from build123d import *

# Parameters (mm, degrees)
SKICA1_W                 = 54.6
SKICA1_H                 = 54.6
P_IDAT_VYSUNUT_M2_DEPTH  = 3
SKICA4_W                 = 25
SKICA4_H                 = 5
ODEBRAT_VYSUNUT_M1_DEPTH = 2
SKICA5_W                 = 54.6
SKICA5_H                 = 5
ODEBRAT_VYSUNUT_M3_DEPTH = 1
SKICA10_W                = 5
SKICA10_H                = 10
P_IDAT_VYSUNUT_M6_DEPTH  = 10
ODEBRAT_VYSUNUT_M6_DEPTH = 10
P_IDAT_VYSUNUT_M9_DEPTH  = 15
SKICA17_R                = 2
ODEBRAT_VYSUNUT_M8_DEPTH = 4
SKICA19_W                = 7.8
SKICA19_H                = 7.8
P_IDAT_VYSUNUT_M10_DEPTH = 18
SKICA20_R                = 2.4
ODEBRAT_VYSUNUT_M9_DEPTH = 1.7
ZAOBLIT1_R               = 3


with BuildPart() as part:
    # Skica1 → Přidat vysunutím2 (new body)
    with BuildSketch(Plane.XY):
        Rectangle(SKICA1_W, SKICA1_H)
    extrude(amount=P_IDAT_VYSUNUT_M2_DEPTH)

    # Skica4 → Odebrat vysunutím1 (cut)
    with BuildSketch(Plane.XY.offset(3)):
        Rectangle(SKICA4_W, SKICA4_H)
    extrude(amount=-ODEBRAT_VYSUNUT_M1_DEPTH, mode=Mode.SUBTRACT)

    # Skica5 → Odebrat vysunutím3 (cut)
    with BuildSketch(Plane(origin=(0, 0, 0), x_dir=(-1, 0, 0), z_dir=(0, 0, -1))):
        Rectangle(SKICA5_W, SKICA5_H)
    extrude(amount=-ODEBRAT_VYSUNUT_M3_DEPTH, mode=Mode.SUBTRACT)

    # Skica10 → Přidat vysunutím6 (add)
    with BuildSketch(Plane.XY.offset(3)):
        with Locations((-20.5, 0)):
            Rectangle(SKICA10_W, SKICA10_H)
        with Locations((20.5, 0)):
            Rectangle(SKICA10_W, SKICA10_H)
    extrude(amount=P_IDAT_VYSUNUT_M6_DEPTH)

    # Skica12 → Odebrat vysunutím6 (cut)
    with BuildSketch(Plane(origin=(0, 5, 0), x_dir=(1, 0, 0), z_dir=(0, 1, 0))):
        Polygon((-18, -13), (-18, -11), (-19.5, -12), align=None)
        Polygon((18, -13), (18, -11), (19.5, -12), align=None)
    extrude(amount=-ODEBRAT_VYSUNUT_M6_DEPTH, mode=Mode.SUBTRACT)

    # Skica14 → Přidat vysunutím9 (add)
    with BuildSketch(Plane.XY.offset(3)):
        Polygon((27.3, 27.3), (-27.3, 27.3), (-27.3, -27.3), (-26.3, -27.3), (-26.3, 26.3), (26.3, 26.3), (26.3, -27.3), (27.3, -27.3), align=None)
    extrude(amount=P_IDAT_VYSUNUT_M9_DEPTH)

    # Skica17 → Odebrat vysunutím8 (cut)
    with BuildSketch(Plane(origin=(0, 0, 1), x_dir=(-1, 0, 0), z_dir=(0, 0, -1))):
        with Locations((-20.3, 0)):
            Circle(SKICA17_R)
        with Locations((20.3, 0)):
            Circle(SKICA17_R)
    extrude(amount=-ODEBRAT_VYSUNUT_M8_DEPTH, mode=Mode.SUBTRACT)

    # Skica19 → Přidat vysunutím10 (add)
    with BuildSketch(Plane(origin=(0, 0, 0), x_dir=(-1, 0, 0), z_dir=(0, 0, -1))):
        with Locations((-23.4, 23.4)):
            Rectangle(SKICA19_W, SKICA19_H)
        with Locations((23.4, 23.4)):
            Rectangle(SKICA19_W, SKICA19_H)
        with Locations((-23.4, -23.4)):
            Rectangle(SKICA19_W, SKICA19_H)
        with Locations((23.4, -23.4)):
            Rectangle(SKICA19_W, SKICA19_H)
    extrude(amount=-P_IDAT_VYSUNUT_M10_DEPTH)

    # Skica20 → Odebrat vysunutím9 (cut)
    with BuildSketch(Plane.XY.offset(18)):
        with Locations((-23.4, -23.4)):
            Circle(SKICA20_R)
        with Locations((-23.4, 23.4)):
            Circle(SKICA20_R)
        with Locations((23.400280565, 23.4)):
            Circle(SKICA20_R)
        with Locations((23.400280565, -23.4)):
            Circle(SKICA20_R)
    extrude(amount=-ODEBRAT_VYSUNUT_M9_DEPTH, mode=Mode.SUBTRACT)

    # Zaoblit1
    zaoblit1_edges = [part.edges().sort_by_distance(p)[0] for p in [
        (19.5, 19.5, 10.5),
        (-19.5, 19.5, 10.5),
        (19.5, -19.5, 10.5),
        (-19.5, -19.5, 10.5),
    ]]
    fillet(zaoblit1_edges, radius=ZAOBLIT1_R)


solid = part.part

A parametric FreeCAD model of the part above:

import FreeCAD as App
import Part
import Sketcher

V = App.Vector
Q = App.Units.Quantity


def edges_at(feature, points):
    """Names of the edges that pass closest to the given points."""
    edges = feature.Shape.Edges
    near = lambda p: min(range(len(edges)), key=lambda i: edges[i].distToShape(Part.Vertex(*p))[0])
    return sorted({f"Edge{near(p) + 1}" for p in points})


def add_polygon(sketch, points):
    """Adds a closed chain of lines whose ends are joined by coincident constraints."""
    first, n = sketch.GeometryCount, len(points)
    for a, b in zip(points, points[1:] + points[:1]):
        sketch.addGeometry(Part.LineSegment(App.Vector(*a, 0), App.Vector(*b, 0)), False)
    for i in range(n):
        sketch.addConstraint(Sketcher.Constraint("Coincident", first + i, 2, first + (i + 1) % n, 1))

doc = App.newDocument("Part")
params = doc.addObject("Spreadsheet::Sheet", "Params")
for row, (alias, value) in enumerate([
    ("sketch1_width", "54.6 mm"),
    ("pad1_length", "3 mm"),
    ("sketch2_width", "25 mm"),
    ("sketch2_height", "5 mm"),
    ("pocket1_length", "2 mm"),
    ("sketch3_height", "5 mm"),
    ("sketch3_width", "54.6 mm"),
    ("pocket2_length", "1 mm"),
    ("sketch4_width", "5 mm"),
    ("sketch4_height", "10 mm"),
    ("pad2_length", "10 mm"),
    ("sketch5_height", "2 mm"),
    ("pocket3_length", "10 mm"),
    ("sketch6_width", "1 mm"),
    ("sketch6_width2", "54.6 mm"),
    ("sketch6_height", "53.6 mm"),
    ("pad3_length", "15 mm"),
    ("sketch7_diameter", "4 mm"),
    ("pocket4_length", "4 mm"),
    ("sketch8_width", "7.8 mm"),
    ("pad4_length", "18 mm"),
    ("sketch9_diameter", "4.8 mm"),
    ("pocket5_length", "1.7 mm"),
    ("fillet_radius", "3 mm"),
], start=1):
    params.set(f"A{row}", alias)
    params.set(f"B{row}", "=" + value)
    params.setAlias(f"B{row}", alias)

body = doc.addObject("PartDesign::Body", "Body")

sketch1 = body.newObject("Sketcher::SketchObject", "Sketch")
sketch1.AttachmentSupport = (doc.getObject("XY_Plane"), [""])
sketch1.MapMode = "FlatFace"
add_polygon(sketch1, [(-27, 27), (-27, -27), (27, -27), (27, 27)])
sketch1.addConstraint(Sketcher.Constraint("Vertical", 0))
sketch1.addConstraint(Sketcher.Constraint("Horizontal", 1))
sketch1.addConstraint(Sketcher.Constraint("Vertical", 2))
sketch1.addConstraint(Sketcher.Constraint("Horizontal", 3))
sketch1.addConstraint(Sketcher.Constraint("Symmetric", 0, 2, 2, 2, -1, 1))
sketch1.addConstraint(Sketcher.Constraint("Equal", 3, 0))
sketch1.addConstraint(Sketcher.Constraint("DistanceX", 1, 1, 1, 2, Q("54.6 mm")))
sketch1.setExpression("Constraints[10]", "Params.sketch1_width")
pad1 = body.newObject("PartDesign::Pad", "Pad")
pad1.Profile = sketch1
pad1.setExpression("Length", "Params.pad1_length")

sketch2 = body.newObject("Sketcher::SketchObject", "Sketch001")
sketch2.AttachmentSupport = (doc.getObject("XY_Plane"), [""])
sketch2.MapMode = "FlatFace"
sketch2.AttachmentOffset = App.Placement(V(0, 0, 3), App.Rotation())
add_polygon(sketch2, [(-12, 2), (-12, -2), (12, -2), (12, 2)])
sketch2.addConstraint(Sketcher.Constraint("Vertical", 0))
sketch2.addConstraint(Sketcher.Constraint("Horizontal", 1))
sketch2.addConstraint(Sketcher.Constraint("Vertical", 2))
sketch2.addConstraint(Sketcher.Constraint("Horizontal", 3))
sketch2.addConstraint(Sketcher.Constraint("Symmetric", 0, 2, 2, 2, -1, 1))
sketch2.addConstraint(Sketcher.Constraint("DistanceX", 1, 1, 1, 2, Q("25 mm")))
sketch2.addConstraint(Sketcher.Constraint("DistanceY", 0, 2, 0, 1, Q("5 mm")))
sketch2.setExpression("Constraints[9]", "Params.sketch2_width")
sketch2.setExpression("Constraints[10]", "Params.sketch2_height")
pocket1 = body.newObject("PartDesign::Pocket", "Pocket")
pocket1.Profile = sketch2
pocket1.setExpression("Length", "Params.pocket1_length")

sketch3 = body.newObject("Sketcher::SketchObject", "Sketch002")
sketch3.AttachmentSupport = (doc.getObject("XY_Plane"), [""])
sketch3.MapMode = "FlatFace"
add_polygon(sketch3, [(27, 2), (27, -2), (-27, -2), (-27, 2)])
sketch3.addConstraint(Sketcher.Constraint("Vertical", 0))
sketch3.addConstraint(Sketcher.Constraint("Horizontal", 1))
sketch3.addConstraint(Sketcher.Constraint("Vertical", 2))
sketch3.addConstraint(Sketcher.Constraint("Horizontal", 3))
sketch3.addConstraint(Sketcher.Constraint("Symmetric", 0, 2, 2, 2, -1, 1))
sketch3.addConstraint(Sketcher.Constraint("DistanceY", 0, 2, 0, 1, Q("5 mm")))
sketch3.addConstraint(Sketcher.Constraint("DistanceX", 1, 2, 1, 1, Q("54.6 mm")))
sketch3.setExpression("Constraints[9]", "Params.sketch3_height")
sketch3.setExpression("Constraints[10]", "Params.sketch3_width")
pocket2 = body.newObject("PartDesign::Pocket", "Pocket001")
pocket2.Profile = sketch3
pocket2.setExpression("Length", "Params.pocket2_length")
pocket2.Reversed = True

sketch4 = body.newObject("Sketcher::SketchObject", "Sketch003")
sketch4.AttachmentSupport = (doc.getObject("XY_Plane"), [""])
sketch4.MapMode = "FlatFace"
sketch4.AttachmentOffset = App.Placement(V(0, 0, 3), App.Rotation())
add_polygon(sketch4, [(-23, 5), (-23, -5), (-18, -5), (-18, 5)])
add_polygon(sketch4, [(18, 5), (18, -5), (23, -5), (23, 5)])
sketch4.addConstraint(Sketcher.Constraint("Vertical", 0))
sketch4.addConstraint(Sketcher.Constraint("Horizontal", 1))
sketch4.addConstraint(Sketcher.Constraint("Vertical", 2))
sketch4.addConstraint(Sketcher.Constraint("Horizontal", 3))
sketch4.addConstraint(Sketcher.Constraint("Vertical", 4))
sketch4.addConstraint(Sketcher.Constraint("Horizontal", 5))
sketch4.addConstraint(Sketcher.Constraint("Vertical", 6))
sketch4.addConstraint(Sketcher.Constraint("Horizontal", 7))
sketch4.addConstraint(Sketcher.Constraint("Symmetric", 2, 2, 4, 2, -1, 1))
sketch4.addConstraint(Sketcher.Constraint("Symmetric", 0, 2, 6, 2, -1, 1))
sketch4.addConstraint(Sketcher.Constraint("Horizontal", 1, 2, 4, 2))
sketch4.addConstraint(Sketcher.Constraint("DistanceX", 1, 1, 1, 2, Q("5 mm")))
sketch4.addConstraint(Sketcher.Constraint("DistanceY", 0, 2, 0, 1, Q("10 mm")))
sketch4.addConstraint(Sketcher.Constraint("DistanceX", 0, 2, -1, 1, Q("23 mm")))
sketch4.setExpression("Constraints[19]", "Params.sketch4_width")
sketch4.setExpression("Constraints[20]", "Params.sketch4_height")
pad2 = body.newObject("PartDesign::Pad", "Pad001")
pad2.Profile = sketch4
pad2.setExpression("Length", "Params.pad2_length")

sketch5 = body.newObject("Sketcher::SketchObject", "Sketch004")
sketch5.AttachmentSupport = (doc.getObject("XZ_Plane"), [""])
sketch5.MapMode = "FlatFace"
sketch5.AttachmentOffset = App.Placement(V(0, 0, -5), App.Rotation())
add_polygon(sketch5, [(-18, 13), (-18, 11), (-19.5, 12)])
add_polygon(sketch5, [(18, 11), (18, 13), (19.5, 12)])
sketch5.addConstraint(Sketcher.Constraint("Vertical", 0))
sketch5.addConstraint(Sketcher.Constraint("Vertical", 3))
sketch5.addConstraint(Sketcher.Constraint("Symmetric", 2, 2, 3, 2, -2))
sketch5.addConstraint(Sketcher.Constraint("Symmetric", 1, 2, 4, 2, -2))
sketch5.addConstraint(Sketcher.Constraint("Parallel", 1, 4))
sketch5.addConstraint(Sketcher.Constraint("Parallel", 2, 5))
sketch5.addConstraint(Sketcher.Constraint("DistanceY", 0, 2, 0, 1, Q("2 mm")))
sketch5.addConstraint(Sketcher.Constraint("DistanceX", 0, 2, -1, 1, Q("18 mm")))
sketch5.addConstraint(Sketcher.Constraint("DistanceY", -1, 1, 0, 2, Q("11 mm")))
sketch5.addConstraint(Sketcher.Constraint("DistanceX", 1, 2, 4, 2, Q("39 mm")))
sketch5.setExpression("Constraints[12]", "Params.sketch5_height")
pocket3 = body.newObject("PartDesign::Pocket", "Pocket002")
pocket3.Profile = sketch5
pocket3.setExpression("Length", "Params.pocket3_length")
pocket3.Reversed = True

sketch6 = body.newObject("Sketcher::SketchObject", "Sketch005")
sketch6.AttachmentSupport = (doc.getObject("XY_Plane"), [""])
sketch6.MapMode = "FlatFace"
sketch6.AttachmentOffset = App.Placement(V(0, 0, 3), App.Rotation())
add_polygon(sketch6, [(27.3, 27.3), (-27.3, 27.3), (-27.3, -27.3), (-26.3, -27.3), (-26.3, 26.3), (26.3, 26.3), (26.3, -27.3), (27.3, -27.3)])
sketch6.addConstraint(Sketcher.Constraint("Horizontal", 0))
sketch6.addConstraint(Sketcher.Constraint("Vertical", 1))
sketch6.addConstraint(Sketcher.Constraint("Horizontal", 2))
sketch6.addConstraint(Sketcher.Constraint("Vertical", 3))
sketch6.addConstraint(Sketcher.Constraint("Horizontal", 4))
sketch6.addConstraint(Sketcher.Constraint("Vertical", 5))
sketch6.addConstraint(Sketcher.Constraint("Horizontal", 6))
sketch6.addConstraint(Sketcher.Constraint("Vertical", 7))
sketch6.addConstraint(Sketcher.Constraint("Symmetric", 0, 2, 6, 2, -1, 1))
sketch6.addConstraint(Sketcher.Constraint("Symmetric", 2, 2, 5, 2, -2))
sketch6.addConstraint(Sketcher.Constraint("Equal", 0, 1))
sketch6.addConstraint(Sketcher.Constraint("DistanceX", 2, 1, 2, 2, Q("1 mm")))
sketch6.addConstraint(Sketcher.Constraint("DistanceX", 0, 2, 0, 1, Q("54.6 mm")))
sketch6.addConstraint(Sketcher.Constraint("DistanceY", 3, 1, 3, 2, Q("53.6 mm")))
sketch6.setExpression("Constraints[19]", "Params.sketch6_width")
sketch6.setExpression("Constraints[20]", "Params.sketch6_width2")
sketch6.setExpression("Constraints[21]", "Params.sketch6_height")
pad3 = body.newObject("PartDesign::Pad", "Pad002")
pad3.Profile = sketch6
pad3.setExpression("Length", "Params.pad3_length")

sketch7 = body.newObject("Sketcher::SketchObject", "Sketch006")
sketch7.AttachmentSupport = (doc.getObject("XY_Plane"), [""])
sketch7.MapMode = "FlatFace"
sketch7.AttachmentOffset = App.Placement(V(0, 0, 1), App.Rotation())
sketch7.addGeometry(Part.Circle(V(20.3, 0, 0), V(0, 0, 1), 2), False)
sketch7.addGeometry(Part.Circle(V(-20.3, 0, 0), V(0, 0, 1), 2), False)
sketch7.addConstraint(Sketcher.Constraint("Equal", 0, 1))
sketch7.addConstraint(Sketcher.Constraint("Symmetric", 0, 3, 1, 3, -1, 1))
sketch7.addConstraint(Sketcher.Constraint("PointOnObject", 0, 3, -1))
sketch7.addConstraint(Sketcher.Constraint("Diameter", 0, Q("4 mm")))
sketch7.addConstraint(Sketcher.Constraint("DistanceX", -1, 1, 0, 3, Q("20.3 mm")))
sketch7.setExpression("Constraints[3]", "Params.sketch7_diameter")
pocket4 = body.newObject("PartDesign::Pocket", "Pocket003")
pocket4.Profile = sketch7
pocket4.setExpression("Length", "Params.pocket4_length")
pocket4.Reversed = True

sketch8 = body.newObject("Sketcher::SketchObject", "Sketch007")
sketch8.AttachmentSupport = (doc.getObject("XY_Plane"), [""])
sketch8.MapMode = "FlatFace"
add_polygon(sketch8, [(27, 27), (27, 20), (20, 20), (20, 27)])
add_polygon(sketch8, [(-20, 27), (-20, 20), (-27, 20), (-27, 27)])
add_polygon(sketch8, [(27, -20), (27, -27), (20, -27), (20, -20)])
add_polygon(sketch8, [(-20, -20), (-20, -27), (-27, -27), (-27, -20)])
sketch8.addConstraint(Sketcher.Constraint("Vertical", 0))
sketch8.addConstraint(Sketcher.Constraint("Horizontal", 1))
sketch8.addConstraint(Sketcher.Constraint("Vertical", 2))
sketch8.addConstraint(Sketcher.Constraint("Horizontal", 3))
sketch8.addConstraint(Sketcher.Constraint("Vertical", 4))
sketch8.addConstraint(Sketcher.Constraint("Horizontal", 5))
sketch8.addConstraint(Sketcher.Constraint("Vertical", 6))
sketch8.addConstraint(Sketcher.Constraint("Horizontal", 7))
sketch8.addConstraint(Sketcher.Constraint("Vertical", 8))
sketch8.addConstraint(Sketcher.Constraint("Horizontal", 9))
sketch8.addConstraint(Sketcher.Constraint("Vertical", 10))
sketch8.addConstraint(Sketcher.Constraint("Horizontal", 11))
sketch8.addConstraint(Sketcher.Constraint("Vertical", 12))
sketch8.addConstraint(Sketcher.Constraint("Horizontal", 13))
sketch8.addConstraint(Sketcher.Constraint("Vertical", 14))
sketch8.addConstraint(Sketcher.Constraint("Horizontal", 15))
sketch8.addConstraint(Sketcher.Constraint("Symmetric", 6, 2, 8, 2, -1, 1))
sketch8.addConstraint(Sketcher.Constraint("Symmetric", 4, 2, 10, 2, -1, 1))
sketch8.addConstraint(Sketcher.Constraint("Symmetric", 2, 2, 12, 2, -1, 1))
sketch8.addConstraint(Sketcher.Constraint("Symmetric", 0, 2, 14, 2, -1, 1))
sketch8.addConstraint(Sketcher.Constraint("Symmetric", 1, 2, 4, 2, -2))
sketch8.addConstraint(Sketcher.Constraint("Symmetric", 3, 2, 6, 2, -2))
sketch8.addConstraint(Sketcher.Constraint("Equal", 15, 0))
sketch8.addConstraint(Sketcher.Constraint("DistanceX", 1, 2, 1, 1, Q("7.8 mm")))
sketch8.addConstraint(Sketcher.Constraint("DistanceX", 4, 2, 1, 2, Q("39 mm")))
sketch8.addConstraint(Sketcher.Constraint("DistanceY", 10, 2, 1, 2, Q("39 mm")))
sketch8.setExpression("Constraints[39]", "Params.sketch8_width")
pad4 = body.newObject("PartDesign::Pad", "Pad003")
pad4.Profile = sketch8
pad4.setExpression("Length", "Params.pad4_length")

sketch9 = body.newObject("Sketcher::SketchObject", "Sketch008")
sketch9.AttachmentSupport = (doc.getObject("XY_Plane"), [""])
sketch9.MapMode = "FlatFace"
sketch9.AttachmentOffset = App.Placement(V(0, 0, 18), App.Rotation())
sketch9.addGeometry(Part.Circle(V(-23.4, -23.4, 0), V(0, 0, 1), 2.4), False)
sketch9.addGeometry(Part.Circle(V(-23.4, 23.4, 0), V(0, 0, 1), 2.4), False)
sketch9.addGeometry(Part.Circle(V(23.4, 23.4, 0), V(0, 0, 1), 2.4), False)
sketch9.addGeometry(Part.Circle(V(23.4, -23.4, 0), V(0, 0, 1), 2.4), False)
sketch9.addConstraint(Sketcher.Constraint("Equal", 0, 1))
sketch9.addConstraint(Sketcher.Constraint("Equal", 1, 2))
sketch9.addConstraint(Sketcher.Constraint("Equal", 2, 3))
sketch9.addConstraint(Sketcher.Constraint("Symmetric", 0, 3, 1, 3, -1))
sketch9.addConstraint(Sketcher.Constraint("Symmetric", 2, 3, 3, 3, -1))
sketch9.addConstraint(Sketcher.Constraint("Horizontal", 1, 3, 2, 3))
sketch9.addConstraint(Sketcher.Constraint("Diameter", 0, Q("4.8 mm")))
sketch9.addConstraint(Sketcher.Constraint("DistanceX", 0, 3, -1, 1, Q("23.4 mm")))
sketch9.addConstraint(Sketcher.Constraint("DistanceY", 0, 3, -1, 1, Q("23.4 mm")))
sketch9.addConstraint(Sketcher.Constraint("DistanceX", -1, 1, 2, 3, Q("23.400281 mm")))
sketch9.setExpression("Constraints[6]", "Params.sketch9_diameter")
pocket5 = body.newObject("PartDesign::Pocket", "Pocket004")
pocket5.Profile = sketch9
pocket5.setExpression("Length", "Params.pocket5_length")
doc.recompute()

fillet = body.newObject("PartDesign::Fillet", "Fillet")
fillet.Base = (pocket5, edges_at(pocket5, [
    (19.5, 19.5, 10.5),
    (-19.5, 19.5, 10.5),
    (19.5, -19.5, 10.5),
    (-19.5, -19.5, 10.5),
]))
fillet.setExpression("Radius", "Params.fillet_radius")

doc.recompute()
